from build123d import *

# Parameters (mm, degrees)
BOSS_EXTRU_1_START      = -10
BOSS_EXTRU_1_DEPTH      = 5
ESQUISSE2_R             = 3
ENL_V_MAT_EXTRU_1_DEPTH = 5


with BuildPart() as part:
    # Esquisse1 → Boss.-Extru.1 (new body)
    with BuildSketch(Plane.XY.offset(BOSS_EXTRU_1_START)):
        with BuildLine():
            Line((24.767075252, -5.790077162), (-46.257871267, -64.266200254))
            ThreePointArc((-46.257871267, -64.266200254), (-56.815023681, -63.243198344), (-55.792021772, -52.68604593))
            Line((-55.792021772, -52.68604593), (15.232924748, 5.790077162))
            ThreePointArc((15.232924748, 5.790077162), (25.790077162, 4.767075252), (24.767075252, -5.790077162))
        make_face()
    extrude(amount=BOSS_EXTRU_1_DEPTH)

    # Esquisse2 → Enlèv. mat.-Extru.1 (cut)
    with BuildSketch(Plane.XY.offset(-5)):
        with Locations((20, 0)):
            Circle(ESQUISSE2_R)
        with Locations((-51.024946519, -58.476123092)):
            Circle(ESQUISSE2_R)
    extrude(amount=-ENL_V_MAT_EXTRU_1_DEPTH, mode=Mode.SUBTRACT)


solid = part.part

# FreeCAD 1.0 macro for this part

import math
import FreeCAD as App
import Part
import Sketcher

V = App.Vector

doc = App.newDocument("Part")
body = doc.addObject("PartDesign::Body", "Body")

# Sketch on XY plane
sketch1 = doc.addObject("Sketcher::SketchObject", "Sketch")
body.addObject(sketch1)
sketch1.AttachmentSupport = (doc.XY_Plane, [""])
sketch1.MapMode = "FlatFace"
sketch1.AttachmentOffset = App.Placement(V(0, 0, -10), App.Rotation())
sketch1.addGeometry([
    Part.LineSegment(V(-46, -64, 0), V(25, -6, 0)),
    Part.ArcOfCircle(Part.Circle(V(20, 0, 0), V(0, 0, 1), 8), math.radians(-51), math.radians(129)),
    Part.LineSegment(V(15, 6, 0), V(-56, -53, 0)),
    Part.ArcOfCircle(Part.Circle(V(-51, -58, 0), V(0, 0, 1), 8), math.radians(129), math.radians(309)),
], False)
sketch1.addConstraint([
    Sketcher.Constraint("Tangent", 0, 2, 1, 1),
    Sketcher.Constraint("Tangent", 1, 2, 2, 1),
    Sketcher.Constraint("Tangent", 2, 2, 3, 1),
    Sketcher.Constraint("Tangent", 3, 2, 0, 1),
    Sketcher.Constraint("Equal", 1, 3),
    Sketcher.Constraint("PointOnObject", 1, 3, -1),
    Sketcher.Constraint("Radius", 1, 7.5),
    Sketcher.Constraint("Distance", 0, 92.0),
    Sketcher.Constraint("DistanceX", -1, 1, 1, 3, 20.0),
    Sketcher.Constraint("DistanceY", 3, 2, -1, 1, 64.2662),
])
pad1 = doc.addObject("PartDesign::Pad", "Pad")
body.addObject(pad1)
pad1.Profile = sketch1
pad1.Length = 5

# Sketch on XY plane
sketch2 = doc.addObject("Sketcher::SketchObject", "Sketch001")
body.addObject(sketch2)
sketch2.AttachmentSupport = (doc.XY_Plane, [""])
sketch2.MapMode = "FlatFace"
sketch2.AttachmentOffset = App.Placement(V(0, 0, -5), App.Rotation())
sketch2.addGeometry([
    Part.Circle(V(20, 0, 0), V(0, 0, 1), 3),
    Part.Circle(V(-51, -58.5, 0), V(0, 0, 1), 3),
], False)
sketch2.addConstraint([
    Sketcher.Constraint("Equal", 0, 1),
    Sketcher.Constraint("PointOnObject", 0, 3, -1),
    Sketcher.Constraint("Diameter", 0, 6.0),
    Sketcher.Constraint("DistanceX", -1, 1, 0, 3, 20.0),
    Sketcher.Constraint("DistanceX", 1, 3, -1, 1, 51.024947),
    Sketcher.Constraint("DistanceY", 1, 3, -1, 1, 58.476123),
])
pocket1 = doc.addObject("PartDesign::Pocket", "Pocket")
body.addObject(pocket1)
pocket1.Profile = sketch2
pocket1.Length = 5

doc.recompute()
